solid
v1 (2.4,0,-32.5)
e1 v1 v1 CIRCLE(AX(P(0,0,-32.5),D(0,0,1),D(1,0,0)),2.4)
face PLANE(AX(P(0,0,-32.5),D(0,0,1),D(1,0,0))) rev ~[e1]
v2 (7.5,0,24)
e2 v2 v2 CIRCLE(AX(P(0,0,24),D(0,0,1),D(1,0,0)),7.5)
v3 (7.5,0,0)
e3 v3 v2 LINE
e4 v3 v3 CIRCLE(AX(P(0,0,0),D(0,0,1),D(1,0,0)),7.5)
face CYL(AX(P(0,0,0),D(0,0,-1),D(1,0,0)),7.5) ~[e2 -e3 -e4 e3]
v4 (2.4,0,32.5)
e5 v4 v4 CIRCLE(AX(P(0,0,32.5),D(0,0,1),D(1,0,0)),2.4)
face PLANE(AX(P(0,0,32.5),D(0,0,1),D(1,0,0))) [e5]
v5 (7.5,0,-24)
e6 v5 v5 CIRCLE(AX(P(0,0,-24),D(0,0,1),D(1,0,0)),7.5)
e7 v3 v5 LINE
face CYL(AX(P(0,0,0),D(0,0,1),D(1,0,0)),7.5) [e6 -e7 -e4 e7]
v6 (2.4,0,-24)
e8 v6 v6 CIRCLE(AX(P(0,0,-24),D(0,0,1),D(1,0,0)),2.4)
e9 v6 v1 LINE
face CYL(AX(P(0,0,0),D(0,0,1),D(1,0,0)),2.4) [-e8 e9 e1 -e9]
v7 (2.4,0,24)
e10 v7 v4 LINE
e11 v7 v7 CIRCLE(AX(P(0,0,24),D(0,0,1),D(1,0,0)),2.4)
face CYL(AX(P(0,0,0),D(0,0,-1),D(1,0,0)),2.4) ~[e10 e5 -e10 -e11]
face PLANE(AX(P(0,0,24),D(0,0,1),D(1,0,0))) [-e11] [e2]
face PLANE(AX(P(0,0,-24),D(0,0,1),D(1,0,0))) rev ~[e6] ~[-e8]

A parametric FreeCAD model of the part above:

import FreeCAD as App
import Part
import Sketcher
Q = App.Units.Quantity

doc = App.newDocument("Part")
body = doc.addObject("PartDesign::Body", "Body")

# Sketch on XY plane
sketch1 = body.newObject("Sketcher::SketchObject", "Sketch")
sketch1.AttachmentSupport = (doc.getObject("XY_Plane"), [""])
sketch1.MapMode = "FlatFace"
sketch1.addGeometry(Part.Circle(App.Vector(0, 0, 0), App.Vector(0, 0, 1), 2.4), False)
sketch1.addConstraint(Sketcher.Constraint("Coincident", 0, 3, -1, 1))
sketch1.addConstraint(Sketcher.Constraint("Diameter", 0, Q("4.8 mm")))
pad1 = body.newObject("PartDesign::Pad", "Pad")
pad1.Profile = sketch1
pad1.Length = 65
pad1.Midplane = True

# Sketch on XY plane
sketch2 = body.newObject("Sketcher::SketchObject", "Sketch001")
sketch2.AttachmentSupport = (doc.getObject("XY_Plane"), [""])
sketch2.MapMode = "FlatFace"
sketch2.addGeometry(Part.Circle(App.Vector(0, 0, 0), App.Vector(0, 0, 1), 7.5), False)
sketch2.addGeometry(Part.Circle(App.Vector(0, 0, 0), App.Vector(0, 0, 1), 2.4), False)
sketch2.addConstraint(Sketcher.Constraint("Coincident", 0, 3, -1, 1))
sketch2.addConstraint(Sketcher.Constraint("Coincident", 1, 3, -1, 1))
sketch2.addConstraint(Sketcher.Constraint("Diameter", 0, Q("15 mm")))
sketch2.addConstraint(Sketcher.Constraint("Diameter", 1, Q("4.8 mm")))
pad2 = body.newObject("PartDesign::Pad", "Pad001")
pad2.Profile = sketch2
pad2.Length = 48
pad2.Midplane = True

doc.recompute()
